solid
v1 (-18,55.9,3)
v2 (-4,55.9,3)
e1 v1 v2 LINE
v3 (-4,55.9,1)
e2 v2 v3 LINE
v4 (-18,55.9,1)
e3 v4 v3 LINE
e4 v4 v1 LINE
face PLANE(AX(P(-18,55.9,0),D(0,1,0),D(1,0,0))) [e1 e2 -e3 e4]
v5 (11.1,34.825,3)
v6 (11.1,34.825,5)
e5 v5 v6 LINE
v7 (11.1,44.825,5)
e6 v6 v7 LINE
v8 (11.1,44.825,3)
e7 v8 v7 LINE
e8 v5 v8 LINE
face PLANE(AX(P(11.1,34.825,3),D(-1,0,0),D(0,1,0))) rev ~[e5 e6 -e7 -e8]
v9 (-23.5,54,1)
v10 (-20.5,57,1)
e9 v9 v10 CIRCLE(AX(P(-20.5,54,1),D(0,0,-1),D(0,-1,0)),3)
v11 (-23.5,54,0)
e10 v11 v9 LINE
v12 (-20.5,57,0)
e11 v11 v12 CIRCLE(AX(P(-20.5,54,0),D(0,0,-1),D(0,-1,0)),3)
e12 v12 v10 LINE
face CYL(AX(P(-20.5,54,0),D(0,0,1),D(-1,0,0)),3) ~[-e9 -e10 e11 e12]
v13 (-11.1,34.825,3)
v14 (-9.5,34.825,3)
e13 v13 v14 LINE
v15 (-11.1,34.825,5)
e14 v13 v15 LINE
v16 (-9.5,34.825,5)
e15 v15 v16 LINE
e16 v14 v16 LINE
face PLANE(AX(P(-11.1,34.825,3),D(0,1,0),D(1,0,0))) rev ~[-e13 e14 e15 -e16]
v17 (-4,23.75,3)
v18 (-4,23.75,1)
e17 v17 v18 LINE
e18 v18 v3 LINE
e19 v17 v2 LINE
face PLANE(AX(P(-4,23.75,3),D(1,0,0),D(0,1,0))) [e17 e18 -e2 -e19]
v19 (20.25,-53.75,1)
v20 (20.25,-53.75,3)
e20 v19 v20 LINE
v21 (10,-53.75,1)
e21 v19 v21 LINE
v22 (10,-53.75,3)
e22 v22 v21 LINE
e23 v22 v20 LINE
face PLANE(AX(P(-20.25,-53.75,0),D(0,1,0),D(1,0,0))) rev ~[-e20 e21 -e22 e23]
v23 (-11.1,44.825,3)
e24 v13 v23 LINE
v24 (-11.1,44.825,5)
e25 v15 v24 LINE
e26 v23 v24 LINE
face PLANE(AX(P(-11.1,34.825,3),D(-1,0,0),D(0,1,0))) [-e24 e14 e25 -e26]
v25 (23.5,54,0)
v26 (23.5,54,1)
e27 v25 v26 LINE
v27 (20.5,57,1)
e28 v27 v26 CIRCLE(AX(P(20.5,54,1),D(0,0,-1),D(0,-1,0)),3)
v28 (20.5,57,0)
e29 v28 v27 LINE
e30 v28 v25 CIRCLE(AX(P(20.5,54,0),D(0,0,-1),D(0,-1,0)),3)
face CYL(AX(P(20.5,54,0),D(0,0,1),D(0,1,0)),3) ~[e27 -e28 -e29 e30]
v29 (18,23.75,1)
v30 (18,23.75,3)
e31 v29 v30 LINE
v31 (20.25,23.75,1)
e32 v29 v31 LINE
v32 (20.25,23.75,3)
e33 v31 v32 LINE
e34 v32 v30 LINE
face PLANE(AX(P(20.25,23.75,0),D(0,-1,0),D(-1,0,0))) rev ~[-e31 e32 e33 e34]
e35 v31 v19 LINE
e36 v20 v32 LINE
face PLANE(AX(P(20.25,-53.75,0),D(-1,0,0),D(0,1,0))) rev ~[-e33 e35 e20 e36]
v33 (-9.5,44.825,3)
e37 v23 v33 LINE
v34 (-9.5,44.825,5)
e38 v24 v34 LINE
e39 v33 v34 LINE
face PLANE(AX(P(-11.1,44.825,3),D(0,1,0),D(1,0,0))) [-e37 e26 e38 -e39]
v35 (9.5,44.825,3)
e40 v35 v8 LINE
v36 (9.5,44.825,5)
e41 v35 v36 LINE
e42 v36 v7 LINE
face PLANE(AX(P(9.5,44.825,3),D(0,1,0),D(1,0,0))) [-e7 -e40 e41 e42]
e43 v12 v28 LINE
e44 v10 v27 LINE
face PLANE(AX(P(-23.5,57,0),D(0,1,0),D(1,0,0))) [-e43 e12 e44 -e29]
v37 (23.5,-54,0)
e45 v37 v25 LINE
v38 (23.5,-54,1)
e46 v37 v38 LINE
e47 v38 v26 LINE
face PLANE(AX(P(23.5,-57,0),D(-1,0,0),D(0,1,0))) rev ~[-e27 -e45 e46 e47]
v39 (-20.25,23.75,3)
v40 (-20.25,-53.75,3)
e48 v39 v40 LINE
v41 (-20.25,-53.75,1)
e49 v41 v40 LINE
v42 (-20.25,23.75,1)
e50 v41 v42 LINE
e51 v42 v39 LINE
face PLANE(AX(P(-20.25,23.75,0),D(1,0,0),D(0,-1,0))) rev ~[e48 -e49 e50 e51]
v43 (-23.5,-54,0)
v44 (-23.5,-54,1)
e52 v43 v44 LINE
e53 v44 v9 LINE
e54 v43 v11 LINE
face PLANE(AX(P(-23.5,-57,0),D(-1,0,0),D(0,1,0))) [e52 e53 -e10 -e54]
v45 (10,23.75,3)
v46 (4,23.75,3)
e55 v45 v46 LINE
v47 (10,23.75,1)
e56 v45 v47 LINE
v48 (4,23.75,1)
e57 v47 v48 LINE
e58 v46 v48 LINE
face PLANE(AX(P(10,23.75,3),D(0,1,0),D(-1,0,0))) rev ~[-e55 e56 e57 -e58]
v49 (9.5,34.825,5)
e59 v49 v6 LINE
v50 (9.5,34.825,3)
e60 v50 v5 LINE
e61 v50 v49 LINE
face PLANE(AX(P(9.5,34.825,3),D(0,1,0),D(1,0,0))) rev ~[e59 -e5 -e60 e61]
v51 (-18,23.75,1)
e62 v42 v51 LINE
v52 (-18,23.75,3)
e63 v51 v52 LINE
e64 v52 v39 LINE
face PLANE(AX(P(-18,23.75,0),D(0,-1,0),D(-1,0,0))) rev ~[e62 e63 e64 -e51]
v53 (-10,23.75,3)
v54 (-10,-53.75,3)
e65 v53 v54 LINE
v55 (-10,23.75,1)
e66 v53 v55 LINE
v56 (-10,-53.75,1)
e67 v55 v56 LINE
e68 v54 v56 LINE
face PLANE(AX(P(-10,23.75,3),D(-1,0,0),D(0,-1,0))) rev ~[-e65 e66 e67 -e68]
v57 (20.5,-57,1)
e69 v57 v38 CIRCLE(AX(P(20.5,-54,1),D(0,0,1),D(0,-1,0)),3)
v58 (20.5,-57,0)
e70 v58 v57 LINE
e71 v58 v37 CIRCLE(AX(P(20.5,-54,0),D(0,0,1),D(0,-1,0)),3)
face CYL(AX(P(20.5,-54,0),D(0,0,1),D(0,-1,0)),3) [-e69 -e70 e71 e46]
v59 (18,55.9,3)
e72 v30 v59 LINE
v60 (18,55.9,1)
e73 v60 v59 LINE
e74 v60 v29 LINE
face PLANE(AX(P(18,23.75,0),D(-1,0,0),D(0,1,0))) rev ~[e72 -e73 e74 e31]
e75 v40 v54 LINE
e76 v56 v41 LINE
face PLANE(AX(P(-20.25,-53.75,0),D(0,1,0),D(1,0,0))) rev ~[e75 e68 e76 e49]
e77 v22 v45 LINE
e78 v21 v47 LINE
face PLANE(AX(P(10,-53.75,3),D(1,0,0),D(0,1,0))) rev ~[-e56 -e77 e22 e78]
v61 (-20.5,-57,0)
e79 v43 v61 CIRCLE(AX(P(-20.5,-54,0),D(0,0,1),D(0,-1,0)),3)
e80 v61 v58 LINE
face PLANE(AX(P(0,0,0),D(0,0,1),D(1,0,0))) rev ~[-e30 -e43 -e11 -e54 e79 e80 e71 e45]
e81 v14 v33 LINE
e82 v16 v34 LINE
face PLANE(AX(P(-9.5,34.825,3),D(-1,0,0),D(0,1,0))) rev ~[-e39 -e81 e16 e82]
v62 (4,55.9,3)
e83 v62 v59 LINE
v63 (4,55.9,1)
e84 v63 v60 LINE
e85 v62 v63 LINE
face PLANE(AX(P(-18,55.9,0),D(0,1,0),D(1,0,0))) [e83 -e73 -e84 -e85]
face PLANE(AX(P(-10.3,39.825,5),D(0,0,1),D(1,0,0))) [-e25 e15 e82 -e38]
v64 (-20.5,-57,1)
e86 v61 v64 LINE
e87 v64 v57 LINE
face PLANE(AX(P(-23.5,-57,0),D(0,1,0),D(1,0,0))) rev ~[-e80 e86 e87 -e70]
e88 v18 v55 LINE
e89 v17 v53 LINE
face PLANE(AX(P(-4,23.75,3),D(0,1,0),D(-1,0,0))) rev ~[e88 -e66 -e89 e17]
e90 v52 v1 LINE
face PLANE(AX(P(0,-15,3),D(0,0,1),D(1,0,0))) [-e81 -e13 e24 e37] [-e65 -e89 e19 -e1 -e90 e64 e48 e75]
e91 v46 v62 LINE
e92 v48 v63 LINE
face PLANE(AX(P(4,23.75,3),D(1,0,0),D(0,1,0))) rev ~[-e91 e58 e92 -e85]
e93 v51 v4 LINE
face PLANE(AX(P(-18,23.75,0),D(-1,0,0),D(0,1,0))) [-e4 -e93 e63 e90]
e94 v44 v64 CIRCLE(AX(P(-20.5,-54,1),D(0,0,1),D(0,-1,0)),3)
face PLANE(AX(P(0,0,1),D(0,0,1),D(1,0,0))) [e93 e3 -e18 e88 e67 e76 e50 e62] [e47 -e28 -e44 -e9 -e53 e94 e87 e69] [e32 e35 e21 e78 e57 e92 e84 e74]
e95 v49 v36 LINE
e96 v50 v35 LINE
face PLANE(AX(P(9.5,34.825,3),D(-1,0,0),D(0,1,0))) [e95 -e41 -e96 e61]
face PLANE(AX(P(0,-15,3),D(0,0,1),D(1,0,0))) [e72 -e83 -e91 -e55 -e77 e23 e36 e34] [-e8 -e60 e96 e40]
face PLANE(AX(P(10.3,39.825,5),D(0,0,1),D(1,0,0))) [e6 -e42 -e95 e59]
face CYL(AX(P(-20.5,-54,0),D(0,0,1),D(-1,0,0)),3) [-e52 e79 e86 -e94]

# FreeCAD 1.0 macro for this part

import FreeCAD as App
import Part
import Sketcher

V = App.Vector


def edges_at(feature, points):
    """Names of the edges that pass closest to the given points."""
    edges = feature.Shape.Edges
    near = lambda p: min(range(len(edges)), key=lambda i: edges[i].distToShape(Part.Vertex(*p))[0])
    return sorted({f"Edge{near(p) + 1}" for p in points})


def add_polygon(sketch, points):
    """Adds a closed chain of lines whose ends are joined by coincident constraints."""
    first, n = sketch.GeometryCount, len(points)
    for a, b in zip(points, points[1:] + points[:1]):
        sketch.addGeometry(Part.LineSegment(App.Vector(*a, 0), App.Vector(*b, 0)), False)
    for i in range(n):
        sketch.addConstraint(Sketcher.Constraint("Coincident", first + i, 2, first + (i + 1) % n, 1))

doc = App.newDocument("Part")
body = doc.addObject("PartDesign::Body", "Body")

sketch1 = body.newObject("Sketcher::SketchObject", "Sketch")
sketch1.AttachmentSupport = (doc.getObject("XY_Plane"), [""])
sketch1.MapMode = "FlatFace"
add_polygon(sketch1, [(-23.5, 57), (-23.5, -57), (23.5, -57), (23.5, 57)])
add_polygon(sketch1, [(18, 55.9), (18, 23.8), (20.2, 23.8), (20.2, -53.8), (-20.2, -53.8), (-20.2, 23.8), (-18, 23.8), (-18, 55.9)])
sketch1.addConstraint(Sketcher.Constraint("Vertical", 0))
sketch1.addConstraint(Sketcher.Constraint("Horizontal", 1))
sketch1.addConstraint(Sketcher.Constraint("Vertical", 2))
sketch1.addConstraint(Sketcher.Constraint("Horizontal", 3))
sketch1.addConstraint(Sketcher.Constraint("Vertical", 4))
sketch1.addConstraint(Sketcher.Constraint("Horizontal", 5))
sketch1.addConstraint(Sketcher.Constraint("Vertical", 6))
sketch1.addConstraint(Sketcher.Constraint("Horizontal", 7))
sketch1.addConstraint(Sketcher.Constraint("Vertical", 8))
sketch1.addConstraint(Sketcher.Constraint("Horizontal", 9))
sketch1.addConstraint(Sketcher.Constraint("Vertical", 10))
sketch1.addConstraint(Sketcher.Constraint("Horizontal", 11))
sketch1.addConstraint(Sketcher.Constraint("Symmetric", 0, 2, 2, 2, -1, 1))
sketch1.addConstraint(Sketcher.Constraint("Symmetric", 5, 2, 8, 2, -2))
sketch1.addConstraint(Sketcher.Constraint("Equal", 5, 9))
sketch1.addConstraint(Sketcher.Constraint("DistanceX", 1, 1, 1, 2, 47.0))
sketch1.addConstraint(Sketcher.Constraint("DistanceX", 11, 1, 11, 2, 36.0))
sketch1.addConstraint(Sketcher.Constraint("DistanceY", 0, 2, 0, 1, 114.0))
sketch1.addConstraint(Sketcher.Constraint("DistanceX", 7, 2, 7, 1, 40.5))
sketch1.addConstraint(Sketcher.Constraint("DistanceY", 6, 2, 6, 1, 77.5))
sketch1.addConstraint(Sketcher.Constraint("DistanceY", 4, 2, 4, 1, 32.15))
sketch1.addConstraint(Sketcher.Constraint("DistanceY", -1, 1, 10, 2, 55.9))
pad1 = body.newObject("PartDesign::Pad", "Pad")
pad1.Profile = sketch1
pad1.Length = 1

sketch2 = body.newObject("Sketcher::SketchObject", "Sketch001")
sketch2.AttachmentSupport = (doc.getObject("XY_Plane"), [""])
sketch2.MapMode = "FlatFace"
add_polygon(sketch2, [(20.2, -53.8), (20.2, 23.8), (18, 23.8), (18, 55.9), (-18, 55.9), (-18, 23.8), (-20.2, 23.8), (-20.2, -53.8)])
sketch2.addConstraint(Sketcher.Constraint("Vertical", 0))
sketch2.addConstraint(Sketcher.Constraint("Horizontal", 1))
sketch2.addConstraint(Sketcher.Constraint("Vertical", 2))
sketch2.addConstraint(Sketcher.Constraint("Horizontal", 3))
sketch2.addConstraint(Sketcher.Constraint("Vertical", 4))
sketch2.addConstraint(Sketcher.Constraint("Horizontal", 5))
sketch2.addConstraint(Sketcher.Constraint("Vertical", 6))
sketch2.addConstraint(Sketcher.Constraint("Horizontal", 7))
sketch2.addConstraint(Sketcher.Constraint("Symmetric", 1, 2, 4, 2, -2))
sketch2.addConstraint(Sketcher.Constraint("Equal", 1, 5))
sketch2.addConstraint(Sketcher.Constraint("DistanceX", 3, 2, 3, 1, 36.0))
sketch2.addConstraint(Sketcher.Constraint("DistanceX", 7, 1, 7, 2, 40.5))
sketch2.addConstraint(Sketcher.Constraint("DistanceY", 0, 1, 0, 2, 77.5))
sketch2.addConstraint(Sketcher.Constraint("DistanceY", 2, 1, 2, 2, 32.15))
sketch2.addConstraint(Sketcher.Constraint("DistanceY", -1, 1, 2, 2, 55.9))
pad2 = body.newObject("PartDesign::Pad", "Pad001")
pad2.Profile = sketch2
pad2.Length = 3
doc.recompute()

fillet = body.newObject("PartDesign::Fillet", "Fillet")
fillet.Base = (pad2, edges_at(pad2, [
    (23.5, -57, 0.5),
    (-23.5, -57, 0.5),
    (23.5, 57, 0.5),
    (-23.5, 57, 0.5),
]))
fillet.Radius = 3

sketch3 = body.newObject("Sketcher::SketchObject", "Sketch002")
sketch3.AttachmentSupport = (doc.getObject("XY_Plane"), [""])
sketch3.MapMode = "FlatFace"
sketch3.AttachmentOffset = App.Placement(V(0, 0, 3), App.Rotation())
add_polygon(sketch3, [(-10, -54), (10, -54), (10, 24), (4, 24), (4, 56), (-4, 56), (-4, 24), (-10, 24)])
sketch3.addConstraint(Sketcher.Constraint("Horizontal", 0))
sketch3.addConstraint(Sketcher.Constraint("Vertical", 1))
sketch3.addConstraint(Sketcher.Constraint("Horizontal", 2))
sketch3.addConstraint(Sketcher.Constraint("Vertical", 3))
sketch3.addConstraint(Sketcher.Constraint("Horizontal", 4))
sketch3.addConstraint(Sketcher.Constraint("Vertical", 5))
sketch3.addConstraint(Sketcher.Constraint("Horizontal", 6))
sketch3.addConstraint(Sketcher.Constraint("Vertical", 7))
sketch3.addConstraint(Sketcher.Constraint("Symmetric", 2, 2, 5, 2, -2))
sketch3.addConstraint(Sketcher.Constraint("Equal", 2, 6))
sketch3.addConstraint(Sketcher.Constraint("DistanceX", 0, 1, 0, 2, 20.0))
sketch3.addConstraint(Sketcher.Constraint("DistanceX", 2, 2, 2, 1, 6.0))
sketch3.addConstraint(Sketcher.Constraint("DistanceY", 1, 1, 1, 2, 77.5))
sketch3.addConstraint(Sketcher.Constraint("DistanceY", 3, 1, 3, 2, 32.15))
sketch3.addConstraint(Sketcher.Constraint("DistanceY", -1, 1, 3, 2, 55.9))
pocket1 = body.newObject("PartDesign::Pocket", "Pocket")
pocket1.Profile = sketch3
pocket1.Length = 2

sketch4 = body.newObject("Sketcher::SketchObject", "Sketch003")
sketch4.AttachmentSupport = (doc.getObject("XY_Plane"), [""])
sketch4.MapMode = "FlatFace"
sketch4.AttachmentOffset = App.Placement(V(0, 0, 3), App.Rotation())
add_polygon(sketch4, [(-11.1, 44.8), (-11.1, 34.8), (-9.5, 34.8), (-9.5, 44.8)])
add_polygon(sketch4, [(9.5, 44.8), (9.5, 34.8), (11.1, 34.8), (11.1, 44.8)])
sketch4.addConstraint(Sketcher.Constraint("Vertical", 0))
sketch4.addConstraint(Sketcher.Constraint("Horizontal", 1))
sketch4.addConstraint(Sketcher.Constraint("Vertical", 2))
sketch4.addConstraint(Sketcher.Constraint("Horizontal", 3))
sketch4.addConstraint(Sketcher.Constraint("Vertical", 4))
sketch4.addConstraint(Sketcher.Constraint("Horizontal", 5))
sketch4.addConstraint(Sketcher.Constraint("Vertical", 6))
sketch4.addConstraint(Sketcher.Constraint("Horizontal", 7))
sketch4.addConstraint(Sketcher.Constraint("Symmetric", 1, 2, 4, 2, -2))
sketch4.addConstraint(Sketcher.Constraint("Symmetric", 3, 2, 6, 2, -2))
sketch4.addConstraint(Sketcher.Constraint("DistanceY", 0, 2, 0, 1, 10.0))
sketch4.addConstraint(Sketcher.Constraint("DistanceX", 1, 1, 1, 2, 1.6))
sketch4.addConstraint(Sketcher.Constraint("DistanceX", 1, 2, 4, 2, 19.0))
sketch4.addConstraint(Sketcher.Constraint("DistanceY", -1, 1, 0, 2, 34.825))
pad3 = body.newObject("PartDesign::Pad", "Pad002")
pad3.Profile = sketch4
pad3.Length = 2

doc.recompute()
